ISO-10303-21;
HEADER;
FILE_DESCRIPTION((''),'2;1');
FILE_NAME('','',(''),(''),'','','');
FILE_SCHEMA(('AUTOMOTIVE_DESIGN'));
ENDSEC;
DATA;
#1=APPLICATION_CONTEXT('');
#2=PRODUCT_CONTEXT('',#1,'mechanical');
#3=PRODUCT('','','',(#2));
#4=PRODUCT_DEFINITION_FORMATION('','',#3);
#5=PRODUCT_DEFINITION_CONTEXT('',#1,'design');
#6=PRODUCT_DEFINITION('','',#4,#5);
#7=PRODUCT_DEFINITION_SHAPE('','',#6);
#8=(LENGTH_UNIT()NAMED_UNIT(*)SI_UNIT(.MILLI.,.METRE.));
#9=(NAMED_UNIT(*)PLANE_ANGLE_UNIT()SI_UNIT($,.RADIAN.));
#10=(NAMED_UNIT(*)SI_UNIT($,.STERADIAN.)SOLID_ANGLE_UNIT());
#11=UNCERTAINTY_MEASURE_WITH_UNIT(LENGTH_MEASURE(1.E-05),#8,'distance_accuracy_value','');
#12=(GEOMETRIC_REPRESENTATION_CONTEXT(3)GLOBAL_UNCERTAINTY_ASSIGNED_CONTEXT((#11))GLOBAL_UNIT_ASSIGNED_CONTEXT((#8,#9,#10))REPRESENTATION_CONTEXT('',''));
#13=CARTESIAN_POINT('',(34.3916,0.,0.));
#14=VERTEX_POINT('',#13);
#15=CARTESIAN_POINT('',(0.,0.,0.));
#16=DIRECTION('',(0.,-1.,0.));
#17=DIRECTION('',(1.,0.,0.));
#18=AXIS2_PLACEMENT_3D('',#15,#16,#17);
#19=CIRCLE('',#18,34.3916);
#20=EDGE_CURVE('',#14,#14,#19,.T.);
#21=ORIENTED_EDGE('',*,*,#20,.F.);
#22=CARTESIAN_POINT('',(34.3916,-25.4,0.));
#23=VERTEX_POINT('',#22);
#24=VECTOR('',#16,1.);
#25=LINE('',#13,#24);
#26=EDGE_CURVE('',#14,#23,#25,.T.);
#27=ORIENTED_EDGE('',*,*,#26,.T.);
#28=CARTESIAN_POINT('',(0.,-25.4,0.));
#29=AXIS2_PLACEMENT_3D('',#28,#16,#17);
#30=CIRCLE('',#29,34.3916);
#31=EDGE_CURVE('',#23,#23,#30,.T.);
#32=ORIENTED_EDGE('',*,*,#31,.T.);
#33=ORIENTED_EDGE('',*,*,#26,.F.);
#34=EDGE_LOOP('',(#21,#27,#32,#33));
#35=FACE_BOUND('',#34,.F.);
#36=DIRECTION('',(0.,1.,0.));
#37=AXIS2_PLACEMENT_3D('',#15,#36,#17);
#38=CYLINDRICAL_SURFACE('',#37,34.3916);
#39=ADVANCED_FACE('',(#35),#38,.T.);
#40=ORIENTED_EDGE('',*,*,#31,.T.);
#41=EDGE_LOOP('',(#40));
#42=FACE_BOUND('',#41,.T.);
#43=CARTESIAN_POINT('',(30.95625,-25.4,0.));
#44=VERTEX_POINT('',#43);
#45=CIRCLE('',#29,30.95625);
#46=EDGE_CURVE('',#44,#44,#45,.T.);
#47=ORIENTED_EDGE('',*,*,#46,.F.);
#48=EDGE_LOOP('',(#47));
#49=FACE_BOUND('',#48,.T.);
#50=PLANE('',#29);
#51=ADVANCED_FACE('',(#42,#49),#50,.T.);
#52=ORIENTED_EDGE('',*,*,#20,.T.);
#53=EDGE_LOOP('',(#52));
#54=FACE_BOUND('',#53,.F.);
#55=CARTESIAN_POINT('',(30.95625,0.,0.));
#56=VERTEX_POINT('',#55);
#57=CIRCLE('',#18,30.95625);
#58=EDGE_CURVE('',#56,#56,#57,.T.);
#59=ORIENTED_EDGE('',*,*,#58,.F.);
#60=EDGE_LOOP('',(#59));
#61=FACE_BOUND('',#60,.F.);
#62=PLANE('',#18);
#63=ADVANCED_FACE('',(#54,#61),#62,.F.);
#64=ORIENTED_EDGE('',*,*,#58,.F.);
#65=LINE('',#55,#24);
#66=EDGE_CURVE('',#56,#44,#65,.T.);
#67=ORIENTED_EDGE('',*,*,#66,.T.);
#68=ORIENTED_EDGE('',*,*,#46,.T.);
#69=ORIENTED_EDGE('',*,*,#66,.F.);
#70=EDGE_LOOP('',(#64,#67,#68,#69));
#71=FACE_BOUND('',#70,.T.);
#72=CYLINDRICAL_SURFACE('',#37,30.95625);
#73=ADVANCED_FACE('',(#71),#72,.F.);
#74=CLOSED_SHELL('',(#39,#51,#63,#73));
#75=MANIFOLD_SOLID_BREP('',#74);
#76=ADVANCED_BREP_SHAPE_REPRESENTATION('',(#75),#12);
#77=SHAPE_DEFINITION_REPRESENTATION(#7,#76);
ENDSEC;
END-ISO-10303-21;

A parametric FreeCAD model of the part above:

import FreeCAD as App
import Part
import Sketcher

V = App.Vector
Q = App.Units.Quantity

doc = App.newDocument("Part")
body = doc.addObject("PartDesign::Body", "Body")

# Sketch on XZ plane
sketch1 = body.newObject("Sketcher::SketchObject", "Sketch")
sketch1.AttachmentSupport = (doc.getObject("XZ_Plane"), [""])
sketch1.MapMode = "FlatFace"
sketch1.addGeometry(Part.Circle(V(0, 0, 0), V(0, 0, 1), 34), False)
sketch1.addGeometry(Part.Circle(V(0, 0, 0), V(0, 0, 1), 31), False)
sketch1.addConstraint(Sketcher.Constraint("Coincident", 0, 3, -1, 1))
sketch1.addConstraint(Sketcher.Constraint("Coincident", 1, 3, -1, 1))
sketch1.addConstraint(Sketcher.Constraint("Diameter", 0, Q("2.708 in")))
sketch1.addConstraint(Sketcher.Constraint("Diameter", 1, Q("2.4375 in")))
pad1 = body.newObject("PartDesign::Pad", "Pad")
pad1.Profile = sketch1
pad1.Length = Q("1 in")

doc.recompute()
